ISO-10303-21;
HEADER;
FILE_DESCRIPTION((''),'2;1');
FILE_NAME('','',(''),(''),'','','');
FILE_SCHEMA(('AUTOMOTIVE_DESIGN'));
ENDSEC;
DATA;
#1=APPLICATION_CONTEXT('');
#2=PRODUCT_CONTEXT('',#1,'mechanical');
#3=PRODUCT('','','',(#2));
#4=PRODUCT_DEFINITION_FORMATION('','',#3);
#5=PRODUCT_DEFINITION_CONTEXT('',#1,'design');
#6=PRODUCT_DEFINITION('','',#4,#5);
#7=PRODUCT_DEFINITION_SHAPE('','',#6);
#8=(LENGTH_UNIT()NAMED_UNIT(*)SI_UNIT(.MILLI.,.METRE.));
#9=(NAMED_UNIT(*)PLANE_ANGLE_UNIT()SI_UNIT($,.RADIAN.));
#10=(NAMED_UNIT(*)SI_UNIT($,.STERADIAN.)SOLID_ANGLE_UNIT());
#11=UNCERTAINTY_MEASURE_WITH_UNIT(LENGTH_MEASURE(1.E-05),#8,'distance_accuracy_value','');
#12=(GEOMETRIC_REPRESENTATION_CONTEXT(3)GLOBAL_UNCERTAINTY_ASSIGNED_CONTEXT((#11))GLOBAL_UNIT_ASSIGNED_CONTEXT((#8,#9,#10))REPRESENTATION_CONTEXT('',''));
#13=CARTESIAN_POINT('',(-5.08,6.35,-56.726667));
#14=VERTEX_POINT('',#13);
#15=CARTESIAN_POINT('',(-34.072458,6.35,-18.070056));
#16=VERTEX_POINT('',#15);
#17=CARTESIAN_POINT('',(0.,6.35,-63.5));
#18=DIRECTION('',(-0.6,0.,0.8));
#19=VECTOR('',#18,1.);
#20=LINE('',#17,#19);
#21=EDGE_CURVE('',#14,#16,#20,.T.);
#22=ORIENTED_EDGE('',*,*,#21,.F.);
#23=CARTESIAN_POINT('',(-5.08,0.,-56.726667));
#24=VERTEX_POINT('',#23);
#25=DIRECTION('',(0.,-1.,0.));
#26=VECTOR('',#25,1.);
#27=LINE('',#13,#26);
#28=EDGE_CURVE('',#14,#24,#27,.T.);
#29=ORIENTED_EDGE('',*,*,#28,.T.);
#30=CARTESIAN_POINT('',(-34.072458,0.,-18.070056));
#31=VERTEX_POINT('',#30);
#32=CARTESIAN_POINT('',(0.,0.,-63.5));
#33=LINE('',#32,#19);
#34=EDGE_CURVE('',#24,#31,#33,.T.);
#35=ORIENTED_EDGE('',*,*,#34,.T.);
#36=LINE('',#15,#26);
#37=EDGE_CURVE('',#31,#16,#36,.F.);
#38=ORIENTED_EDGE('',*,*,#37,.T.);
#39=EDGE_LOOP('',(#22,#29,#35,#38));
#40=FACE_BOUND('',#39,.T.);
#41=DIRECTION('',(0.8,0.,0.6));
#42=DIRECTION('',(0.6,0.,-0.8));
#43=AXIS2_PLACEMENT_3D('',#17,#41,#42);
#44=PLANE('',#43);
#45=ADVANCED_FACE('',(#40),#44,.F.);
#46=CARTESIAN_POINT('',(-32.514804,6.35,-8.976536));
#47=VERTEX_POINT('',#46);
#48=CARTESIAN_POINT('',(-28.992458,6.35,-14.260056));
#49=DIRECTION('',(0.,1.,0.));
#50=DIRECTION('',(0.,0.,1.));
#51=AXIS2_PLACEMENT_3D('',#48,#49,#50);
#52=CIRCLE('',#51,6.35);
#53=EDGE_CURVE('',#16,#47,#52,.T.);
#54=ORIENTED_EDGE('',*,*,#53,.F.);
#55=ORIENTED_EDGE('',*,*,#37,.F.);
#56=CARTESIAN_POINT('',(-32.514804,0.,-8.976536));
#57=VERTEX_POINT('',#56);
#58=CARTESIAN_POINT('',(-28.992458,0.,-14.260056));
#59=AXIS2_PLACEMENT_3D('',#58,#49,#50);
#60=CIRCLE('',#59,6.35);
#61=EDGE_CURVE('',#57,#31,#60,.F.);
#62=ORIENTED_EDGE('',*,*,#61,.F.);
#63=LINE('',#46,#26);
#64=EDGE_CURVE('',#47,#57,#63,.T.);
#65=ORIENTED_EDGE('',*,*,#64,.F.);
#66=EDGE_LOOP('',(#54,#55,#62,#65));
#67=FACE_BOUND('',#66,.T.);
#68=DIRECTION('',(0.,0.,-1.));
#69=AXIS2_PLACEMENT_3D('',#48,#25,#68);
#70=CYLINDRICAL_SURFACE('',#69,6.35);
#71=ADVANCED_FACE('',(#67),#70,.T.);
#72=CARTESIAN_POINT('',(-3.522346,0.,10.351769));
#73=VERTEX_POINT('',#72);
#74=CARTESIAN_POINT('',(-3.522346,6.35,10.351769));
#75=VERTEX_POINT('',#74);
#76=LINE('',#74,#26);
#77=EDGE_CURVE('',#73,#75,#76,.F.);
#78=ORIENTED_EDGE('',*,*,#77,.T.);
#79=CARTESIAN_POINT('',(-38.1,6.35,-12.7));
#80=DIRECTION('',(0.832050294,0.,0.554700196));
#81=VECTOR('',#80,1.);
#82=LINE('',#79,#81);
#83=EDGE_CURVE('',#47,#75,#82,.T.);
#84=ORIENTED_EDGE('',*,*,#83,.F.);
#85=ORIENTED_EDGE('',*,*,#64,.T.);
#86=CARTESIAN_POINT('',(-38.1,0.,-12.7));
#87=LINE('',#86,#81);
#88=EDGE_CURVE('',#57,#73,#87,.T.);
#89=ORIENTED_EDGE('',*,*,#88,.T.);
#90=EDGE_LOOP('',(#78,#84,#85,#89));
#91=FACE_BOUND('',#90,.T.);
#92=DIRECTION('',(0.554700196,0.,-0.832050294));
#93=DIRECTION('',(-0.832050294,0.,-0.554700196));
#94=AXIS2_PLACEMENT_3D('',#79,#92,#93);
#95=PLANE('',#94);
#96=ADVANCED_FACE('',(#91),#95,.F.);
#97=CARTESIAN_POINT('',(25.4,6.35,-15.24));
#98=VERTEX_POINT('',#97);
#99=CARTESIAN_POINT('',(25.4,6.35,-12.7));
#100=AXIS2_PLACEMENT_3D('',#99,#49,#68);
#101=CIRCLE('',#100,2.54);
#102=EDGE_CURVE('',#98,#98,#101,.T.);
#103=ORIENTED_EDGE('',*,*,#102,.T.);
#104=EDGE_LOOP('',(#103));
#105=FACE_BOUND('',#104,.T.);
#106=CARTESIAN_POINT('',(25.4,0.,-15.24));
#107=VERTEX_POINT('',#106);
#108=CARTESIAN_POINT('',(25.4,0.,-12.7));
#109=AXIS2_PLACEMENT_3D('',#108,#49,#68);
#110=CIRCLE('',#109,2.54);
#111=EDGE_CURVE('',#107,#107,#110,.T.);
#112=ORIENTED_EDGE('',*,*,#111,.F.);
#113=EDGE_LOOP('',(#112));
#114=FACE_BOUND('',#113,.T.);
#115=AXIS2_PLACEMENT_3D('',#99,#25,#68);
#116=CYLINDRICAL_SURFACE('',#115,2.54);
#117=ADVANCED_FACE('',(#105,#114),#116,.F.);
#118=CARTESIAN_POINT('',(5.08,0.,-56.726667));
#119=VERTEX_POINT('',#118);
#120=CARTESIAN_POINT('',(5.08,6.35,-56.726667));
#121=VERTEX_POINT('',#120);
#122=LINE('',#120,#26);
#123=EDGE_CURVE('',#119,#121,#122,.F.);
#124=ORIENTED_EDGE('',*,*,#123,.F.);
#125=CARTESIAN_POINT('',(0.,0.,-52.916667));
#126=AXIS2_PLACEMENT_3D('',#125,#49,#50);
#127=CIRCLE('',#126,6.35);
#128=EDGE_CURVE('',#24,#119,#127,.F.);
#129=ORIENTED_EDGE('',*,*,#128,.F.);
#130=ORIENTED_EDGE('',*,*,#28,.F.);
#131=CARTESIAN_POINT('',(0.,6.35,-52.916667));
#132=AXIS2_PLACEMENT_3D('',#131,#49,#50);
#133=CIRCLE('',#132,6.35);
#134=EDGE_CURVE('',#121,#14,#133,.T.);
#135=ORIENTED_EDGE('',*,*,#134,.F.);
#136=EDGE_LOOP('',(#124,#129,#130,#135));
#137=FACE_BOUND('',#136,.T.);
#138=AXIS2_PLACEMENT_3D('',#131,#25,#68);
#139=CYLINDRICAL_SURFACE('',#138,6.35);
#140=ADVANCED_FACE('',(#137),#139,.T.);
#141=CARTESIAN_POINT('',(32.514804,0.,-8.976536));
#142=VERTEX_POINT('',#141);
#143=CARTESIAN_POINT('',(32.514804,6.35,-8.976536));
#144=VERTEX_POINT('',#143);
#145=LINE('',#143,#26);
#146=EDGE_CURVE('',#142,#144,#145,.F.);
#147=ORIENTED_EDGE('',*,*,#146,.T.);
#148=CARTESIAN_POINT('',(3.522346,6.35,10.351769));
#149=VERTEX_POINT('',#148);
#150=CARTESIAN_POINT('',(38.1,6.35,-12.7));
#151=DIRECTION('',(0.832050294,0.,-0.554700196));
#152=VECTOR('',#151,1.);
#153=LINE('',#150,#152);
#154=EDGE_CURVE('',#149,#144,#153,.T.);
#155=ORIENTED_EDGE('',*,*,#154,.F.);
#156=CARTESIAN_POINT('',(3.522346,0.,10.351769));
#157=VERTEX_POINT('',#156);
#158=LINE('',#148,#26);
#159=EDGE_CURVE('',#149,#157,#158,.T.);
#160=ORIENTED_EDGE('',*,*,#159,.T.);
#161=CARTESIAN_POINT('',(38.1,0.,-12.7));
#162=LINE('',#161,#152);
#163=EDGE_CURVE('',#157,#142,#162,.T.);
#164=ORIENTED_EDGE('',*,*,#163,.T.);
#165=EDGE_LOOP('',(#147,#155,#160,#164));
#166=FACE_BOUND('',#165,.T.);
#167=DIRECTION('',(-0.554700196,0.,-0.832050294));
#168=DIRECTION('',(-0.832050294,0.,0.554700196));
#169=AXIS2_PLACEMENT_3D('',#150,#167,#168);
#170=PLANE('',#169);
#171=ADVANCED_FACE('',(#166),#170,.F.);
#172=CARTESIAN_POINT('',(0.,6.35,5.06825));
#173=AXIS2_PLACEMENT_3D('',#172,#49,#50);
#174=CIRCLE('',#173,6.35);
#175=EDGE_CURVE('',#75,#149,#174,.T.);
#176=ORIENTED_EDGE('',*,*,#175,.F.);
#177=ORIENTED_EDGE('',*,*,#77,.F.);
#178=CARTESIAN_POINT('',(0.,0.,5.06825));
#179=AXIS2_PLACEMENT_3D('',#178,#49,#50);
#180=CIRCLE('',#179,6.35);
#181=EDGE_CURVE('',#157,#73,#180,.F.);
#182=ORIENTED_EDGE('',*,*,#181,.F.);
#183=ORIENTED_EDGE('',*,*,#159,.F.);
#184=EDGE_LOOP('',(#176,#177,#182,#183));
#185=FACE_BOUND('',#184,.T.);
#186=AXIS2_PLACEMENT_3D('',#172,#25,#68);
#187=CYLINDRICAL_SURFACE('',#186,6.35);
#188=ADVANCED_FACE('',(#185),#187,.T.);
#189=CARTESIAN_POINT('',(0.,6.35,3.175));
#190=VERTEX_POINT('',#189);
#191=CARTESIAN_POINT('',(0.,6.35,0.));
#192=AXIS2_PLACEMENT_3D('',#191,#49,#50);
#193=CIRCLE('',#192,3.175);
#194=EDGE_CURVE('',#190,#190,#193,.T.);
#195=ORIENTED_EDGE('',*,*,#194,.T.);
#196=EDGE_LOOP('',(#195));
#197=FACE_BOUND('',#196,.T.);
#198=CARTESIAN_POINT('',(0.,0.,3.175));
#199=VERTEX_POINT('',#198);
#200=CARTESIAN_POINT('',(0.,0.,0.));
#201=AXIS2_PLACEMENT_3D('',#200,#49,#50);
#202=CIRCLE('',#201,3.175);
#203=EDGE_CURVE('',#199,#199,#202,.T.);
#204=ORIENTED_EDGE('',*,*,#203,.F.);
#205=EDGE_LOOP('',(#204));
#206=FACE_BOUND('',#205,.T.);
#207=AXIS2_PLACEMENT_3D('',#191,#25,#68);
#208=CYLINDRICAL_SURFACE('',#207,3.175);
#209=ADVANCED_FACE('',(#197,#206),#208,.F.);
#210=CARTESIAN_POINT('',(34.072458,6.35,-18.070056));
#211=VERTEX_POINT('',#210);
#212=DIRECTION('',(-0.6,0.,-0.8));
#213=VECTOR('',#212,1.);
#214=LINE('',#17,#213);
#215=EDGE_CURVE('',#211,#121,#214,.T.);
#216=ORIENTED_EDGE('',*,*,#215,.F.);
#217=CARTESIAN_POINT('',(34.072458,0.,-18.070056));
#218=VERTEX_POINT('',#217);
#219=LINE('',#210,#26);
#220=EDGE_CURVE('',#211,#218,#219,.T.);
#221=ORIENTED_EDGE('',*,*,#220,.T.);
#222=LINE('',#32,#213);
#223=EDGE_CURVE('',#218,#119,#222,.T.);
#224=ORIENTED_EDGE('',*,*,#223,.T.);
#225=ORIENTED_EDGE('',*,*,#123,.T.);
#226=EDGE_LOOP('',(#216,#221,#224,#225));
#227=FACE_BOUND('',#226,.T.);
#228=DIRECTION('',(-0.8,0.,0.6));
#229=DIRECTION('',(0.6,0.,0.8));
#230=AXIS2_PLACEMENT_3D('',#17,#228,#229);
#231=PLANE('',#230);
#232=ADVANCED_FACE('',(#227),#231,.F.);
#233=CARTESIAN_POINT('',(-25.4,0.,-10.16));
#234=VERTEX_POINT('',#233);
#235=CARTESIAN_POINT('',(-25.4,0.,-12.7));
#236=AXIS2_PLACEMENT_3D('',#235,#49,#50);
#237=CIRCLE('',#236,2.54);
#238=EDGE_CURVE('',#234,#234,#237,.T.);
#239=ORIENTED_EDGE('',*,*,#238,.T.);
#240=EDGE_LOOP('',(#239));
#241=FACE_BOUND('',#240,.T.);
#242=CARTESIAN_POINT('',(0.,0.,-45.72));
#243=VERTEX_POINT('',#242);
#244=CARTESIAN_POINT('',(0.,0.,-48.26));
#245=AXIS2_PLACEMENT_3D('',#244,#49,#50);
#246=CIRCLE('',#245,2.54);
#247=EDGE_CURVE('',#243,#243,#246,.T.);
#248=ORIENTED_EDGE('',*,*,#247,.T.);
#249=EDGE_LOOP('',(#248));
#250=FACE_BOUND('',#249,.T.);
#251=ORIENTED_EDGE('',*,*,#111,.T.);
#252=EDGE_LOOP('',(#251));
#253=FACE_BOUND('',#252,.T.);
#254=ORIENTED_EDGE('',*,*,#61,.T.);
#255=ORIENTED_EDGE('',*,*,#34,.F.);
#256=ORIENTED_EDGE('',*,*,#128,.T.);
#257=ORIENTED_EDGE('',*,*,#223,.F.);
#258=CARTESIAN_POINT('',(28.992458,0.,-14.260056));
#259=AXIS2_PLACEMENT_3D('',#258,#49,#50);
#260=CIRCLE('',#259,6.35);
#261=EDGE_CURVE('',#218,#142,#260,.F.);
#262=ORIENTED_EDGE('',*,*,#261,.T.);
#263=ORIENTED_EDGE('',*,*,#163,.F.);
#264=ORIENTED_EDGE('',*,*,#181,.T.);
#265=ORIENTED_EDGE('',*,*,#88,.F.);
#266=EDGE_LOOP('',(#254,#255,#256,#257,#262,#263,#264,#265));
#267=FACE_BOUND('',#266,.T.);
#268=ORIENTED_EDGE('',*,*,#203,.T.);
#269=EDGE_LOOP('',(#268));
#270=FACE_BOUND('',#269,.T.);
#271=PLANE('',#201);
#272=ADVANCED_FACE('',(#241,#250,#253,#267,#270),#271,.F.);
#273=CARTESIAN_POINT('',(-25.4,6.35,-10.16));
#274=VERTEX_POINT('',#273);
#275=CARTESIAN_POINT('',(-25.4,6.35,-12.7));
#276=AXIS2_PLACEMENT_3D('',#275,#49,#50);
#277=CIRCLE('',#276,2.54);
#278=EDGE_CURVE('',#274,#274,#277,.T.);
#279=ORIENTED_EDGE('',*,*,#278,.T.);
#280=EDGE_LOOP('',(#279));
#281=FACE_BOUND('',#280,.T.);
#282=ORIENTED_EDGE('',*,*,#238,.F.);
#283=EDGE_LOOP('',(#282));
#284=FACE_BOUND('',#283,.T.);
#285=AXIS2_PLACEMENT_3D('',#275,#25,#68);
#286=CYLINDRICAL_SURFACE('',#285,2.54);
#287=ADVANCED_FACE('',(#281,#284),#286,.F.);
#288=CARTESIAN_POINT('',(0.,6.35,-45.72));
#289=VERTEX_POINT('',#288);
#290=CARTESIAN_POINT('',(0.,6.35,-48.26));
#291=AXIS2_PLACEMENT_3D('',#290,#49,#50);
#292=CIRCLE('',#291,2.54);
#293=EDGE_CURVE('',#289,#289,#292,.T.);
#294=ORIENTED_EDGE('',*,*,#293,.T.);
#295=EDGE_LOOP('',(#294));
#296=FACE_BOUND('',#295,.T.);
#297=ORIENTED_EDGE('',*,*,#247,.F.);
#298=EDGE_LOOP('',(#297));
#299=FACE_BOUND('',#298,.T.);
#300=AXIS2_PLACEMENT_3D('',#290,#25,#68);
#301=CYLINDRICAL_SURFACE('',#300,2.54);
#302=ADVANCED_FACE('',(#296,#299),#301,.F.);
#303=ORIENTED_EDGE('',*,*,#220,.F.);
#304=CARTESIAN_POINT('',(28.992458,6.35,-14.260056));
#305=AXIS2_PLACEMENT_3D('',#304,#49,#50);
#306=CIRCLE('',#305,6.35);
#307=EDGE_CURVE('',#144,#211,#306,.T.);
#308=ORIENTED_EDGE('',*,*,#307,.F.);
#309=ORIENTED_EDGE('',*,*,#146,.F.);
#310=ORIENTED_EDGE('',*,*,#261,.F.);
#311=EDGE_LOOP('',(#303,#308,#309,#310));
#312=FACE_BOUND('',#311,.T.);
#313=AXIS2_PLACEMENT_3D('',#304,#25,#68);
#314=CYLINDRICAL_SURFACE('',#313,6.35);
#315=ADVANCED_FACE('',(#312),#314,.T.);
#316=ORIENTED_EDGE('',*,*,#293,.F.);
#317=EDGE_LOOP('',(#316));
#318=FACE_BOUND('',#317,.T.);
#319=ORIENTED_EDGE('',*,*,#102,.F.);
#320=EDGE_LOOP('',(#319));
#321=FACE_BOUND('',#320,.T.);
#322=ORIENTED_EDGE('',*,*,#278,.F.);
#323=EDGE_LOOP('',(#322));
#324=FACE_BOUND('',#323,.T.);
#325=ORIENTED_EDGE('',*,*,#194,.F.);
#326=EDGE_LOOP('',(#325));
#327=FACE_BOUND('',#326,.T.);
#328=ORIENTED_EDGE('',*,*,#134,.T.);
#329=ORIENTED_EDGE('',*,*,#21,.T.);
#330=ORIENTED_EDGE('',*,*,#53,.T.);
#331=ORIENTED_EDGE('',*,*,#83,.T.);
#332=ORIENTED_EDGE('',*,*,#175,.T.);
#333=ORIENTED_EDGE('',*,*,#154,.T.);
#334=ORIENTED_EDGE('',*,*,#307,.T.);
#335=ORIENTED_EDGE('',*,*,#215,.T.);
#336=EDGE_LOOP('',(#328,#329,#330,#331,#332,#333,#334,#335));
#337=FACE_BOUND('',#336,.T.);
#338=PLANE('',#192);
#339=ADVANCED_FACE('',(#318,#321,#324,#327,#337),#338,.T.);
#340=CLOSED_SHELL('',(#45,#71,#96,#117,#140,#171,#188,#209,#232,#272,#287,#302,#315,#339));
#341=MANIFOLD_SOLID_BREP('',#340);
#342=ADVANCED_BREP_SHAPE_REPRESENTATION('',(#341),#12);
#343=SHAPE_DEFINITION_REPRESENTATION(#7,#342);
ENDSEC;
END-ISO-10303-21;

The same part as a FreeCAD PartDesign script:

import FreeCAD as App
import Part
import Sketcher
from FreeCAD import Vector
Q = App.Units.Quantity


def edges_at(feature, points):
    """Names of the edges that pass closest to the given points."""
    edges = feature.Shape.Edges
    near = lambda p: min(range(len(edges)), key=lambda i: edges[i].distToShape(Part.Vertex(*p))[0])
    return sorted({f"Edge{near(p) + 1}" for p in points})


def add_polygon(sketch, points):
    """Adds a closed chain of lines whose ends are joined by coincident constraints."""
    first, n = sketch.GeometryCount, len(points)
    for a, b in zip(points, points[1:] + points[:1]):
        sketch.addGeometry(Part.LineSegment(App.Vector(*a, 0), App.Vector(*b, 0)), False)
    for i in range(n):
        sketch.addConstraint(Sketcher.Constraint("Coincident", first + i, 2, first + (i + 1) % n, 1))

doc = App.newDocument("Part")
body = doc.addObject("PartDesign::Body", "Body")

sketch1 = body.newObject("Sketcher::SketchObject", "Sketch")
sketch1.AttachmentSupport = (doc.getObject("XZ_Plane"), [""])
sketch1.MapMode = "FlatFace"
add_polygon(sketch1, [(0, -63.5), (-38.1, -12.7), (0, 12.7), (38.1, -12.7)])
sketch1.addGeometry(Part.Circle(Vector(-25.4, -12.7, 0), Vector(0, 0, 1), 2.5), False)
sketch1.addGeometry(Part.Circle(Vector(0, 0, 0), Vector(0, 0, 1), 3.2), False)
sketch1.addGeometry(Part.Circle(Vector(25.4, -12.7, 0), Vector(0, 0, 1), 2.5), False)
sketch1.addGeometry(Part.Circle(Vector(0, -48.3, 0), Vector(0, 0, 1), 2.5), False)
sketch1.addConstraint([
    Sketcher.Constraint("Coincident", 5, 3, -1, 1),
    Sketcher.Constraint("Equal", 4, 6),
    Sketcher.Constraint("Equal", 6, 7),
    Sketcher.Constraint("Symmetric", 4, 3, 6, 3, -2),
    Sketcher.Constraint("Symmetric", 0, 2, 2, 2, -2),
    Sketcher.Constraint("PointOnObject", 7, 3, -2),
    Sketcher.Constraint("PointOnObject", 1, 2, -2),
    Sketcher.Constraint("PointOnObject", 3, 2, -2),
    Sketcher.Constraint("Horizontal", 6, 3, 0, 2),
    Sketcher.Constraint("Diameter", 4, Q("0.2 in")),
    Sketcher.Constraint("Diameter", 5, Q("0.25 in")),
    Sketcher.Constraint("DistanceX", 4, 3, -1, 1, Q("1 in")),
    Sketcher.Constraint("DistanceY", 4, 3, 1, 2, Q("1 in")),
    Sketcher.Constraint("DistanceY", 3, 2, 4, 3, Q("2 in")),
    Sketcher.Constraint("Distance", 0, Q("2.5 in")),
    Sketcher.Constraint("DistanceY", 4, 3, -1, 1, Q("0.5 in")),
    Sketcher.Constraint("DistanceY", 7, 3, -1, 1, Q("1.9 in")),
])
pad1 = body.newObject("PartDesign::Pad", "Pad")
pad1.Profile = sketch1
pad1.Length = Q("0.25 in")
pad1.Reversed = True
doc.recompute()

fillet = body.newObject("PartDesign::Fillet", "Fillet")
fillet.Base = (pad1, edges_at(pad1, [
    (0, 3.175, 12.7),
    (-38.1, 3.175, -12.7),
    (0, 3.175, -63.5),
    (38.1, 3.175, -12.7),
]))
fillet.Radius = Q("0.25 in")

doc.recompute()
